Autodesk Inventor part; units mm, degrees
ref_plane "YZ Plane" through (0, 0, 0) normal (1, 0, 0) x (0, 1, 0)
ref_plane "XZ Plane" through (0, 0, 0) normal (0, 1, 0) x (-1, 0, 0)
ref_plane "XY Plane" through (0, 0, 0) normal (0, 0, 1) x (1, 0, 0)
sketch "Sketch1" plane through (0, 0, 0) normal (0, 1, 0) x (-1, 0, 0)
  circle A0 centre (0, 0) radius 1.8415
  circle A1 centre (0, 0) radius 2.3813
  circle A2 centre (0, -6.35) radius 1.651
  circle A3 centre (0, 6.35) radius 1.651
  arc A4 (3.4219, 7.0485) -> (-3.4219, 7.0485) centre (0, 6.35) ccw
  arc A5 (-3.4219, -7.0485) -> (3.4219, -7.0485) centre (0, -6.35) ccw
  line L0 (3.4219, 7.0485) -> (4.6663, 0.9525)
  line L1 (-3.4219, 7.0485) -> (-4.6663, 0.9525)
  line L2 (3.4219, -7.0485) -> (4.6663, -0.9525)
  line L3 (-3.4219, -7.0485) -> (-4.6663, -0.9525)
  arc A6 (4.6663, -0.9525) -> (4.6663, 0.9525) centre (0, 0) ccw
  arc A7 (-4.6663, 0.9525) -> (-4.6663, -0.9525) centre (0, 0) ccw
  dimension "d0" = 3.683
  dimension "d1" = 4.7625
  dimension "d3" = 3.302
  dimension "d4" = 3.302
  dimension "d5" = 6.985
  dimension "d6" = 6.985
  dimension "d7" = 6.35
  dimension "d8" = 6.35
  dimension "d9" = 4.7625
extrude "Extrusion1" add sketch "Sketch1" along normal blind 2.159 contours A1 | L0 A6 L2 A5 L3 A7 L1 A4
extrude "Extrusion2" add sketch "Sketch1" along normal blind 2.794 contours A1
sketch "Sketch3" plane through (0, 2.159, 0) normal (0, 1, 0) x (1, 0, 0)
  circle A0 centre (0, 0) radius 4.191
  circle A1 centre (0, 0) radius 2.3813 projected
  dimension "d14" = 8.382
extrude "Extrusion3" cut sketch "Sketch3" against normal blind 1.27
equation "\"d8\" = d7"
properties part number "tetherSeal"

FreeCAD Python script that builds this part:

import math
import FreeCAD as App
import Part
import Sketcher
Q = App.Units.Quantity

doc = App.newDocument("Part")
body = doc.addObject("PartDesign::Body", "Body")

sketch1 = body.newObject("Sketcher::SketchObject", "Sketch")
sketch1.AttachmentSupport = (doc.getObject("XZ_Plane"), [""])
sketch1.MapMode = "FlatFace"
sketch1.addGeometry(Part.LineSegment(App.Vector(-4.7, 1, 0), App.Vector(-3.4, 7, 0)), False)
sketch1.addGeometry(Part.ArcOfCircle(Part.Circle(App.Vector(0, 6.3, 0), App.Vector(0, 0, 1), 3.5), math.radians(12), math.radians(168)), False)
sketch1.addGeometry(Part.LineSegment(App.Vector(3.4, 7, 0), App.Vector(4.7, 1, 0)), False)
sketch1.addGeometry(Part.ArcOfCircle(Part.Circle(App.Vector(0, 0, 0), App.Vector(0, 0, 1), 4.8), math.radians(-12), math.radians(12)), False)
sketch1.addGeometry(Part.LineSegment(App.Vector(4.7, -1, 0), App.Vector(3.4, -7, 0)), False)
sketch1.addGeometry(Part.ArcOfCircle(Part.Circle(App.Vector(0, -6.3, 0), App.Vector(0, 0, 1), 3.5), math.radians(-168), math.radians(-12)), False)
sketch1.addGeometry(Part.LineSegment(App.Vector(-3.4, -7, 0), App.Vector(-4.7, -1, 0)), False)
sketch1.addGeometry(Part.ArcOfCircle(Part.Circle(App.Vector(0, 0, 0), App.Vector(0, 0, 1), 4.8), math.radians(168), math.radians(192)), False)
sketch1.addGeometry(Part.Circle(App.Vector(0, 0, 0), App.Vector(0, 0, 1), 1.8), False)
sketch1.addGeometry(Part.Circle(App.Vector(0, -6.3, 0), App.Vector(0, 0, 1), 1.7), False)
sketch1.addGeometry(Part.Circle(App.Vector(0, 6.3, 0), App.Vector(0, 0, 1), 1.7), False)
sketch1.addConstraint(Sketcher.Constraint("Tangent", 0, 2, 1, 2))
sketch1.addConstraint(Sketcher.Constraint("Tangent", 1, 1, 2, 1))
sketch1.addConstraint(Sketcher.Constraint("Tangent", 2, 2, 3, 2))
sketch1.addConstraint(Sketcher.Constraint("Tangent", 3, 1, 4, 1))
sketch1.addConstraint(Sketcher.Constraint("Tangent", 4, 2, 5, 2))
sketch1.addConstraint(Sketcher.Constraint("Tangent", 5, 1, 6, 1))
sketch1.addConstraint(Sketcher.Constraint("Tangent", 6, 2, 7, 2))
sketch1.addConstraint(Sketcher.Constraint("Tangent", 7, 1, 0, 1))
sketch1.addConstraint(Sketcher.Constraint("Coincident", 3, 3, -1, 1))
sketch1.addConstraint(Sketcher.Constraint("Coincident", 7, 3, -1, 1))
sketch1.addConstraint(Sketcher.Constraint("Coincident", 8, 3, -1, 1))
sketch1.addConstraint(Sketcher.Constraint("Coincident", 9, 3, 5, 3))
sketch1.addConstraint(Sketcher.Constraint("Coincident", 10, 3, 1, 3))
sketch1.addConstraint(Sketcher.Constraint("Equal", 1, 5))
sketch1.addConstraint(Sketcher.Constraint("Equal", 3, 7))
sketch1.addConstraint(Sketcher.Constraint("Equal", 9, 10))
sketch1.addConstraint(Sketcher.Constraint("Symmetric", 1, 3, 5, 3, -1, 1))
sketch1.addConstraint(Sketcher.Constraint("PointOnObject", 1, 3, -2))
sketch1.addConstraint(Sketcher.Constraint("Diameter", 9, Q("0.13 in")))
sketch1.addConstraint(Sketcher.Constraint("Diameter", 8, Q("0.145 in")))
sketch1.addConstraint(Sketcher.Constraint("Radius", 3, Q("0.1875 in")))
sketch1.addConstraint(Sketcher.Constraint("Radius", 1, Q("0.1375 in")))
sketch1.addConstraint(Sketcher.Constraint("DistanceY", -1, 1, 1, 3, Q("0.25 in")))
pad1 = body.newObject("PartDesign::Pad", "Pad")
pad1.Profile = sketch1
pad1.Length = Q("0.085 in")
pad1.Reversed = True

sketch2 = body.newObject("Sketcher::SketchObject", "Sketch001")
sketch2.AttachmentSupport = (doc.getObject("XZ_Plane"), [""])
sketch2.MapMode = "FlatFace"
sketch2.addGeometry(Part.Circle(App.Vector(0, 0, 0), App.Vector(0, 0, 1), 2.4), False)
sketch2.addGeometry(Part.Circle(App.Vector(0, 0, 0), App.Vector(0, 0, 1), 1.8), False)
sketch2.addConstraint(Sketcher.Constraint("Coincident", 0, 3, -1, 1))
sketch2.addConstraint(Sketcher.Constraint("Coincident", 1, 3, -1, 1))
sketch2.addConstraint(Sketcher.Constraint("Diameter", 0, Q("0.1875 in")))
sketch2.addConstraint(Sketcher.Constraint("Diameter", 1, Q("0.145 in")))
pad2 = body.newObject("PartDesign::Pad", "Pad001")
pad2.Profile = sketch2
pad2.Length = Q("0.11 in")
pad2.Reversed = True

sketch3 = body.newObject("Sketcher::SketchObject", "Sketch002")
sketch3.AttachmentSupport = (doc.getObject("XZ_Plane"), [""])
sketch3.MapMode = "FlatFace"
sketch3.AttachmentOffset = App.Placement(App.Vector(0, 0, -0.085 * 25.4), App.Rotation())
sketch3.addGeometry(Part.Circle(App.Vector(0, 0, 0), App.Vector(0, 0, 1), 4.2), False)
sketch3.addGeometry(Part.Circle(App.Vector(0, 0, 0), App.Vector(0, 0, 1), 2.4), False)
sketch3.addConstraint(Sketcher.Constraint("Coincident", 0, 3, -1, 1))
sketch3.addConstraint(Sketcher.Constraint("Coincident", 1, 3, -1, 1))
sketch3.addConstraint(Sketcher.Constraint("Diameter", 0, Q("0.33 in")))
sketch3.addConstraint(Sketcher.Constraint("Diameter", 1, Q("0.1875 in")))
pocket1 = body.newObject("PartDesign::Pocket", "Pocket")
pocket1.Profile = sketch3
pocket1.Length = Q("0.05 in")
pocket1.Reversed = True

doc.recompute()
